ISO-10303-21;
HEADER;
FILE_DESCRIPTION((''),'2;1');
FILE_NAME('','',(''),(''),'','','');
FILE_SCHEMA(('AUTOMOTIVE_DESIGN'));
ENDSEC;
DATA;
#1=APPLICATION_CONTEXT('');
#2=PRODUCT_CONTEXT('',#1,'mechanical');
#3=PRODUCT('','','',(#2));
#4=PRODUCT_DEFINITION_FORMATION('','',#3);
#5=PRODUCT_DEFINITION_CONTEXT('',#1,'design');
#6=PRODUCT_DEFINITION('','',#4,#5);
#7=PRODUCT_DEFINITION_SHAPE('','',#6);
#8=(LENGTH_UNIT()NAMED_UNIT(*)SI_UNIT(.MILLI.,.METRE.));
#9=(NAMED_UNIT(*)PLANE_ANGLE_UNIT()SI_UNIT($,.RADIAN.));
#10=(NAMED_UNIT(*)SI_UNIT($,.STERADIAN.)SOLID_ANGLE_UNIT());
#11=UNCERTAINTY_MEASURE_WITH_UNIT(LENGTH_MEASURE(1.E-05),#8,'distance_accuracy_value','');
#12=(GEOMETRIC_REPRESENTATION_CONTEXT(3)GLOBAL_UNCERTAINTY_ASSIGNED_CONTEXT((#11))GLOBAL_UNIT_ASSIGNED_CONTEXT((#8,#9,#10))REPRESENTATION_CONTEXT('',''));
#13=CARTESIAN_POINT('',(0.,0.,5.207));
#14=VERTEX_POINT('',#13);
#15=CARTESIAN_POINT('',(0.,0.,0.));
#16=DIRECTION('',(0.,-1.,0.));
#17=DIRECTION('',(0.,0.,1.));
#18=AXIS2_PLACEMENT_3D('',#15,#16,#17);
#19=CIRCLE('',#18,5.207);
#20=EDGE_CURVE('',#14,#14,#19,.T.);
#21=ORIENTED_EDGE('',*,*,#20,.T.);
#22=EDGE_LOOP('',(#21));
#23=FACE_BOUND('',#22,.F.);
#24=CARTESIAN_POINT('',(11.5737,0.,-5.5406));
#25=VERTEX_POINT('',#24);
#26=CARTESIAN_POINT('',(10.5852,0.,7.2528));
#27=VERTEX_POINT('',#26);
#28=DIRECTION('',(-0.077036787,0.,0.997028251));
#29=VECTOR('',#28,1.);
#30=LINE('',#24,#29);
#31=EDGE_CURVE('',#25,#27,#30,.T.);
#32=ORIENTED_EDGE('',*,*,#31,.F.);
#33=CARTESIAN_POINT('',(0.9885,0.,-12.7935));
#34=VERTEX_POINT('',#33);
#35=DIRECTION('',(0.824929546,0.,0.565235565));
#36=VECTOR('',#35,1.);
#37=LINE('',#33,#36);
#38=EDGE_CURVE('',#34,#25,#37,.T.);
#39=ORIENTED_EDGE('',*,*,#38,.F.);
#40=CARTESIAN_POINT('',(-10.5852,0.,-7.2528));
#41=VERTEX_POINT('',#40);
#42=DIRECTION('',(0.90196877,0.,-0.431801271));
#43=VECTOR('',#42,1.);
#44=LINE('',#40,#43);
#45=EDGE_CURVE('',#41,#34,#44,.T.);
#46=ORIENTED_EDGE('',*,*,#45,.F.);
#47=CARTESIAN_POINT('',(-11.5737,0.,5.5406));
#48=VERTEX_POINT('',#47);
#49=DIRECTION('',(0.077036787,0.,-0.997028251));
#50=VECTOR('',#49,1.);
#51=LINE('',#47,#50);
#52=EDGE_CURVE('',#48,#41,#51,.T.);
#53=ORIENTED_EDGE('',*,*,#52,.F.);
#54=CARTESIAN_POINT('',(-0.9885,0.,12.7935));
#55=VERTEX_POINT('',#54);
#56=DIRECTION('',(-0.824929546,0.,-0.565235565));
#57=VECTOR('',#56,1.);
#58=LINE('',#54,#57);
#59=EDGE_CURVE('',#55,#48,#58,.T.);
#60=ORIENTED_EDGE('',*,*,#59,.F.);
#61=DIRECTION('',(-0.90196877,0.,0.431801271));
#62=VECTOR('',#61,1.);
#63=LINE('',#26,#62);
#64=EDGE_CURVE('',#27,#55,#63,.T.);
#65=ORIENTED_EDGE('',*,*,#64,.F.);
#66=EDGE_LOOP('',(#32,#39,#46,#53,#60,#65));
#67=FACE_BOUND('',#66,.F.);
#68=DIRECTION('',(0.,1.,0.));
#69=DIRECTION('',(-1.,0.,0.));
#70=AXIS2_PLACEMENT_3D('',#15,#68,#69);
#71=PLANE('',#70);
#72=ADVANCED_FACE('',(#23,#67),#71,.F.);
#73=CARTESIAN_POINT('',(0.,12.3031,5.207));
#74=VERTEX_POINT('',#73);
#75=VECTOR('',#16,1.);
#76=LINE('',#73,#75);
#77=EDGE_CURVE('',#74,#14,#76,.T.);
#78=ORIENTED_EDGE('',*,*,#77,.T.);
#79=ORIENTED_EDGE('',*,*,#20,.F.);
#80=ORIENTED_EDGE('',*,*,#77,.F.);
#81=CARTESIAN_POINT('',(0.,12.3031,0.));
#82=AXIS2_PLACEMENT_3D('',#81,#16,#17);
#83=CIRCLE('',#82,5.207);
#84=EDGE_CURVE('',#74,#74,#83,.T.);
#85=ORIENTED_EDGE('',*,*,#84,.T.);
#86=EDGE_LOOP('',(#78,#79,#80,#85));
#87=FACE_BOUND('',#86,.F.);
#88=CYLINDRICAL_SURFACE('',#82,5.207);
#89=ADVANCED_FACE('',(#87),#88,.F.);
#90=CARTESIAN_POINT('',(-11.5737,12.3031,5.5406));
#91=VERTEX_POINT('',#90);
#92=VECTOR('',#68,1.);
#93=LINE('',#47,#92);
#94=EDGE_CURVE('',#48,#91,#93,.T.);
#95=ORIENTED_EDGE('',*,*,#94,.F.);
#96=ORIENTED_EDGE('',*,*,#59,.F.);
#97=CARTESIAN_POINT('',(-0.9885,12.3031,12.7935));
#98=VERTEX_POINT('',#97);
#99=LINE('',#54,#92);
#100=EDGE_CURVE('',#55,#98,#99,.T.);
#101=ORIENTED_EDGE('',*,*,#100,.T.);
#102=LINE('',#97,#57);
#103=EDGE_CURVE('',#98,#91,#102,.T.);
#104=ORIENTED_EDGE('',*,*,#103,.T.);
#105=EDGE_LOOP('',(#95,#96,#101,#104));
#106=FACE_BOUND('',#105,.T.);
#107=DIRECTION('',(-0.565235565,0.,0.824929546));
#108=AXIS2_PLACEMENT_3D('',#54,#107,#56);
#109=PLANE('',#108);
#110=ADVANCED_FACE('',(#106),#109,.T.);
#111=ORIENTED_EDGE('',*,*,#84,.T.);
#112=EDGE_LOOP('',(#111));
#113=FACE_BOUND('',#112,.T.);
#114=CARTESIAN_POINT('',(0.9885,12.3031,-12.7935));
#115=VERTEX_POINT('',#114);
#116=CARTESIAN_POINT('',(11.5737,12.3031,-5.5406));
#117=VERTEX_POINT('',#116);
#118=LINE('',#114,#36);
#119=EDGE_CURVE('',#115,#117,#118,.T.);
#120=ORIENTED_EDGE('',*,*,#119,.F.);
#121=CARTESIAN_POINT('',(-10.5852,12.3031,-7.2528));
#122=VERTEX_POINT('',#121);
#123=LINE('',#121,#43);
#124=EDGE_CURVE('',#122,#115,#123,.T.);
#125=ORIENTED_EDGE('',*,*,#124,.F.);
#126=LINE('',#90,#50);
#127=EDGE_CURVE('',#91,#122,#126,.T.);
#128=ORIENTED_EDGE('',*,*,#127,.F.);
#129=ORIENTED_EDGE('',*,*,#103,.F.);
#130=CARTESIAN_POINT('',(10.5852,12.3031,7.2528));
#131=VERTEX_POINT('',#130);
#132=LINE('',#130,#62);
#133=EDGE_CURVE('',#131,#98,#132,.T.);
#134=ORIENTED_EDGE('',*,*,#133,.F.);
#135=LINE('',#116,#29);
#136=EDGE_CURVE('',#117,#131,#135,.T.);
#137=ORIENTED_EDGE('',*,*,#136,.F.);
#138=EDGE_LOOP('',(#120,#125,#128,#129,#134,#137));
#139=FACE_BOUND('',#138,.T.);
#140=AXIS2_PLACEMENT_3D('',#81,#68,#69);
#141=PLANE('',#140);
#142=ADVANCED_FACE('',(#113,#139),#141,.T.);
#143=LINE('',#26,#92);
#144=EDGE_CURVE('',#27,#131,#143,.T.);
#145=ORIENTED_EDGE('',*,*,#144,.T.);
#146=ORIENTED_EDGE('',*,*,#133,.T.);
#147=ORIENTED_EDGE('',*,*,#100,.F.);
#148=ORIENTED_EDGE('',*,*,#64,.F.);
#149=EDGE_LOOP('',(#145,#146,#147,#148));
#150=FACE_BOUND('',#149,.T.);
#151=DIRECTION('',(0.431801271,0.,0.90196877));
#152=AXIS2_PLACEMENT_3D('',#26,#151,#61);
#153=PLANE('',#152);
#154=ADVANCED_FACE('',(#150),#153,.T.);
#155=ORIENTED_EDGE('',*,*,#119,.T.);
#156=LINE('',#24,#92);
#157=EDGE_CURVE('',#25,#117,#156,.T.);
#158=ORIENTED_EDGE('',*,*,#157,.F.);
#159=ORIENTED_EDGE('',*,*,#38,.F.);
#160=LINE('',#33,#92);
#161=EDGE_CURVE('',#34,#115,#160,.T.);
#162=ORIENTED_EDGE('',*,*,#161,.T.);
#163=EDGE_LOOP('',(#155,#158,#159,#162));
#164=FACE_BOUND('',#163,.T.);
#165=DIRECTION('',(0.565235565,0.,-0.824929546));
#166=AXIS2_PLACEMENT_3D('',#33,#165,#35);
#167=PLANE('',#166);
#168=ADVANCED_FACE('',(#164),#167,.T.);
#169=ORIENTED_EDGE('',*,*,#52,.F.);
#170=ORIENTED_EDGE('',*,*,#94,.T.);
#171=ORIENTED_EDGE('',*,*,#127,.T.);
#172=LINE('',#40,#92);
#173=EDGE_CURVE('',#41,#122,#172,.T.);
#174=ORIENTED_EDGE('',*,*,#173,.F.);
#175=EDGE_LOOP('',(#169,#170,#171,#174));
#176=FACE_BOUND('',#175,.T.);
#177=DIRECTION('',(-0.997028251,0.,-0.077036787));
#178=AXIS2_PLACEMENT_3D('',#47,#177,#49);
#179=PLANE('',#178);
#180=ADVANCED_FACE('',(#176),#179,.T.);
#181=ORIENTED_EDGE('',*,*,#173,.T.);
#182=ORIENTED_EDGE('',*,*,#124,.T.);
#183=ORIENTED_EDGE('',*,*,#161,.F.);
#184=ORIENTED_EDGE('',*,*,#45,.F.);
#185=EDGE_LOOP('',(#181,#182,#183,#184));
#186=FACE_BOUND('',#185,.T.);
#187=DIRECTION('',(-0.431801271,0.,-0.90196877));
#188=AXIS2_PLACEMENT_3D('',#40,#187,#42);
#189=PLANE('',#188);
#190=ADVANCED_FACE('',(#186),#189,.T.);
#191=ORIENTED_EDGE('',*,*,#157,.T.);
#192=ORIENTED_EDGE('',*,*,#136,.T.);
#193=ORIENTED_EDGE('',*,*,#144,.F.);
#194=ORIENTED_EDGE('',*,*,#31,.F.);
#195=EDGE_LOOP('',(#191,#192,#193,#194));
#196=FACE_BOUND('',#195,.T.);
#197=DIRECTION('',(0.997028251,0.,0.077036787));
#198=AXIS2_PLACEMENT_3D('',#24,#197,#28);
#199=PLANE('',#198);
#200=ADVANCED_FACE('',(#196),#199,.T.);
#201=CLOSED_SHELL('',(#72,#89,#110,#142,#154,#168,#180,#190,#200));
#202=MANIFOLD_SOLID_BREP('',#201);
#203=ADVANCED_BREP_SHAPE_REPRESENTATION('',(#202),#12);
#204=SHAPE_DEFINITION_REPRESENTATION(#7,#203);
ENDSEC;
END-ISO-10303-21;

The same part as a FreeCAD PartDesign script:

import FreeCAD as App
import Part
import Sketcher
from FreeCAD import Vector
Q = App.Units.Quantity


def add_polygon(sketch, points):
    """Adds a closed chain of lines whose ends are joined by coincident constraints."""
    first, n = sketch.GeometryCount, len(points)
    for a, b in zip(points, points[1:] + points[:1]):
        sketch.addGeometry(Part.LineSegment(App.Vector(*a, 0), App.Vector(*b, 0)), False)
    for i in range(n):
        sketch.addConstraint(Sketcher.Constraint("Coincident", first + i, 2, first + (i + 1) % n, 1))

doc = App.newDocument("Part")
body = doc.addObject("PartDesign::Body", "Body")

sketch1 = doc.addObject("Sketcher::SketchObject", "Sketch")
body.addObject(sketch1)
sketch1.AttachmentSupport = (doc.XZ_Plane, [""])
sketch1.MapMode = "FlatFace"
add_polygon(sketch1, [(1, -13), (-11, -7), (-12, 6), (-1, 13), (11, 7), (12, -6)])
sketch1.addConstraint([
    Sketcher.Constraint("Symmetric", 0, 2, 3, 2, -1, 1),
    Sketcher.Constraint("Symmetric", 1, 2, 4, 2, -1, 1),
    Sketcher.Constraint("Symmetric", 2, 2, 5, 2, -1, 1),
    Sketcher.Constraint("Equal", 0, 1),
    Sketcher.Constraint("Equal", 1, 2),
    Sketcher.Constraint("DistanceX", 1, 2, 3, 2, Q("0.8724 in")),
    Sketcher.Constraint("DistanceY", 1, 2, 3, 2, Q("0.0674 in")),
    Sketcher.Constraint("Distance", 0, 12.8316),
    Sketcher.Constraint("DistanceX", 0, 2, -1, 1, 10.5852),
])
pad1 = doc.addObject("PartDesign::Pad", "Pad")
body.addObject(pad1)
pad1.Profile = sketch1
pad1.Length = Q("0.484374 in")
pad1.Reversed = True

sketch2 = doc.addObject("Sketcher::SketchObject", "Sketch001")
body.addObject(sketch2)
sketch2.AttachmentSupport = (doc.XZ_Plane, [""])
sketch2.MapMode = "FlatFace"
sketch2.AttachmentOffset = App.Placement(Vector(0, 0, -0.484374 * 25.4), App.Rotation())
sketch2.addGeometry(Part.Circle(Vector(0, 0, 0), Vector(0, 0, 1), 5), False)
sketch2.addConstraint([
    Sketcher.Constraint("Coincident", 0, 3, -1, 1),
    Sketcher.Constraint("Diameter", 0, Q("0.41 in")),
])
doc.recompute()
hole = doc.addObject("PartDesign::Hole", "Hole")
body.addObject(hole)
hole.Profile = sketch2
hole.ThreadType = "None"
hole.Diameter = Q("0.41 in")
hole.DepthType = "ThroughAll"
hole.Reversed = True

doc.recompute()
